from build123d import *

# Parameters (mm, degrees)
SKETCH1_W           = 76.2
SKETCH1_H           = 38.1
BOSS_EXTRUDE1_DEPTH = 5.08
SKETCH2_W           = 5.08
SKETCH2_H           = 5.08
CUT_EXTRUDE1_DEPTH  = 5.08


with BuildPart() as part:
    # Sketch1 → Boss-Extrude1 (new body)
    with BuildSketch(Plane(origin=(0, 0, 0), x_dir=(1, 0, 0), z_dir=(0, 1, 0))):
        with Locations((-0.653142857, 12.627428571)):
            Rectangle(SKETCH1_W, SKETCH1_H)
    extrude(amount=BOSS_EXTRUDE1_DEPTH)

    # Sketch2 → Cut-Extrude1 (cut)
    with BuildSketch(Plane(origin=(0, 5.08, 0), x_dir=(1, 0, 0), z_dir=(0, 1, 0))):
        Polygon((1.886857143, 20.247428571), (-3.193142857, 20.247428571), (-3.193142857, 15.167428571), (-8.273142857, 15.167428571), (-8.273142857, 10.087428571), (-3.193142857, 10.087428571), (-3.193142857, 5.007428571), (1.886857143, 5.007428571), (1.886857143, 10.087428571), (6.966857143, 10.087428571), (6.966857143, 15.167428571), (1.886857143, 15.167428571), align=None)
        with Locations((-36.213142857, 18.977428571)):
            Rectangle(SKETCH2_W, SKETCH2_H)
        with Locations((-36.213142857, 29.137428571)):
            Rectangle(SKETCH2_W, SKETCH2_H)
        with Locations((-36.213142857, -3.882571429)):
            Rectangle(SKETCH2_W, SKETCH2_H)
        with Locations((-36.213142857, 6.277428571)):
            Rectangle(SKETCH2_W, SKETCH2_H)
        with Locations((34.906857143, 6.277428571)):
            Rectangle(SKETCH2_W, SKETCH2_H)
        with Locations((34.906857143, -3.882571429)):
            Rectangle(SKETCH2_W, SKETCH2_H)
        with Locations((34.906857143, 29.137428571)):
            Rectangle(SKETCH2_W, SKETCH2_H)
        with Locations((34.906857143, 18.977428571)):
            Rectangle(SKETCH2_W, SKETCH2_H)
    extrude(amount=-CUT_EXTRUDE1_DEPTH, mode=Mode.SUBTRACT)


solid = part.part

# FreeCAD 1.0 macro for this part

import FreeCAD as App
import Part
import Sketcher
Q = App.Units.Quantity


def add_polygon(sketch, points):
    """Adds a closed chain of lines whose ends are joined by coincident constraints."""
    first, n = sketch.GeometryCount, len(points)
    for a, b in zip(points, points[1:] + points[:1]):
        sketch.addGeometry(Part.LineSegment(App.Vector(*a, 0), App.Vector(*b, 0)), False)
    for i in range(n):
        sketch.addConstraint(Sketcher.Constraint("Coincident", first + i, 2, first + (i + 1) % n, 1))

doc = App.newDocument("Part")
body = doc.addObject("PartDesign::Body", "Body")

# Sketch on XZ plane
sketch1 = doc.addObject("Sketcher::SketchObject", "Sketch")
body.addObject(sketch1)
sketch1.AttachmentSupport = (doc.XZ_Plane, [""])
sketch1.MapMode = "FlatFace"
add_polygon(sketch1, [(-39, -32), (-39, 6), (37, 6), (37, -32)])  # lines 0-3
sketch1.addConstraint([
    Sketcher.Constraint("Vertical", 0),
    Sketcher.Constraint("Horizontal", 1),
    Sketcher.Constraint("Vertical", 2),
    Sketcher.Constraint("Horizontal", 3),
    Sketcher.Constraint("DistanceX", 1, 1, 1, 2, Q("3 in")),
    Sketcher.Constraint("DistanceY", 0, 1, 0, 2, Q("1.5 in")),
    Sketcher.Constraint("DistanceY", -1, 1, 0, 2, 6.422571),
    Sketcher.Constraint("DistanceX", 0, 2, -1, 1, 38.753143),
])
pad1 = doc.addObject("PartDesign::Pad", "Pad")
body.addObject(pad1)
pad1.Profile = sketch1
pad1.Length = Q("0.2 in")
pad1.Reversed = True

# Sketch on XZ plane
sketch2 = doc.addObject("Sketcher::SketchObject", "Sketch001")
body.addObject(sketch2)
sketch2.AttachmentSupport = (doc.XZ_Plane, [""])
sketch2.MapMode = "FlatFace"
sketch2.AttachmentOffset = App.Placement(App.Vector(0, 0, -0.2 * 25.4), App.Rotation())
add_polygon(sketch2, [(2, -20), (-3, -20), (-3, -15), (-8, -15), (-8, -10), (-3, -10), (-3, -5), (2, -5), (2, -10), (7, -10), (7, -15), (2, -15)])  # lines 0-11
add_polygon(sketch2, [(-39, -22), (-39, -16), (-34, -16), (-34, -22)])  # lines 12-15
add_polygon(sketch2, [(-39, -32), (-39, -27), (-34, -27), (-34, -32)])  # lines 16-19
add_polygon(sketch2, [(-39, 1), (-39, 6), (-34, 6), (-34, 1)])  # lines 20-23
add_polygon(sketch2, [(-39, -9), (-39, -4), (-34, -4), (-34, -9)])  # lines 24-27
add_polygon(sketch2, [(32, -9), (32, -4), (37, -4), (37, -9)])  # lines 28-31
add_polygon(sketch2, [(32, 1), (32, 6), (37, 6), (37, 1)])  # lines 32-35
add_polygon(sketch2, [(32, -32), (32, -27), (37, -27), (37, -32)])  # lines 36-39
add_polygon(sketch2, [(32, -22), (32, -16), (37, -16), (37, -22)])  # lines 40-43
sketch2.addConstraint([
    Sketcher.Constraint("Horizontal", 0),
    Sketcher.Constraint("Vertical", 1),
    Sketcher.Constraint("Horizontal", 2),
    Sketcher.Constraint("Vertical", 3),
    Sketcher.Constraint("Horizontal", 4),
    Sketcher.Constraint("Vertical", 5),
    Sketcher.Constraint("Horizontal", 6),
    Sketcher.Constraint("Vertical", 7),
    Sketcher.Constraint("Horizontal", 8),
    Sketcher.Constraint("Vertical", 9),
    Sketcher.Constraint("Horizontal", 10),
    Sketcher.Constraint("Vertical", 11),
    Sketcher.Constraint("Vertical", 12),
    Sketcher.Constraint("Horizontal", 13),
    Sketcher.Constraint("Vertical", 14),
    Sketcher.Constraint("Horizontal", 15),
    Sketcher.Constraint("Vertical", 16),
    Sketcher.Constraint("Horizontal", 17),
    Sketcher.Constraint("Vertical", 18),
    Sketcher.Constraint("Horizontal", 19),
    Sketcher.Constraint("Vertical", 20),
    Sketcher.Constraint("Horizontal", 21),
    Sketcher.Constraint("Vertical", 22),
    Sketcher.Constraint("Horizontal", 23),
    Sketcher.Constraint("Vertical", 24),
    Sketcher.Constraint("Horizontal", 25),
    Sketcher.Constraint("Vertical", 26),
    Sketcher.Constraint("Horizontal", 27),
    Sketcher.Constraint("Vertical", 28),
    Sketcher.Constraint("Horizontal", 29),
    Sketcher.Constraint("Vertical", 30),
    Sketcher.Constraint("Horizontal", 31),
    Sketcher.Constraint("Vertical", 32),
    Sketcher.Constraint("Horizontal", 33),
    Sketcher.Constraint("Vertical", 34),
    Sketcher.Constraint("Horizontal", 35),
    Sketcher.Constraint("Vertical", 36),
    Sketcher.Constraint("Horizontal", 37),
    Sketcher.Constraint("Vertical", 38),
    Sketcher.Constraint("Horizontal", 39),
    Sketcher.Constraint("Vertical", 40),
    Sketcher.Constraint("Horizontal", 41),
    Sketcher.Constraint("Vertical", 42),
    Sketcher.Constraint("Horizontal", 43),
    Sketcher.Constraint("Horizontal", 4, 2, 7, 2),
    Sketcher.Constraint("Horizontal", 2, 2, 9, 2),
    Sketcher.Constraint("Horizontal", 25, 2, 28, 2),
    Sketcher.Constraint("Horizontal", 27, 2, 30, 2),
    Sketcher.Constraint("Horizontal", 21, 2, 32, 2),
    Sketcher.Constraint("Horizontal", 23, 2, 34, 2),
    Sketcher.Constraint("Horizontal", 17, 2, 36, 2),
    Sketcher.Constraint("Horizontal", 19, 2, 38, 2),
    Sketcher.Constraint("Horizontal", 13, 2, 40, 2),
    Sketcher.Constraint("Horizontal", 15, 2, 42, 2),
    Sketcher.Constraint("Vertical", 1, 2, 4, 2),
    Sketcher.Constraint("Vertical", 7, 2, 10, 2),
    Sketcher.Constraint("Vertical", 15, 2, 16, 2),
    Sketcher.Constraint("Vertical", 14, 2, 17, 2),
    Sketcher.Constraint("Vertical", 19, 2, 20, 2),
    Sketcher.Constraint("Vertical", 18, 2, 21, 2),
    Sketcher.Constraint("Vertical", 23, 2, 24, 2),
    Sketcher.Constraint("Vertical", 22, 2, 25, 2),
    Sketcher.Constraint("Vertical", 31, 2, 32, 2),
    Sketcher.Constraint("Vertical", 30, 2, 33, 2),
    Sketcher.Constraint("Vertical", 35, 2, 36, 2),
    Sketcher.Constraint("Vertical", 34, 2, 37, 2),
    Sketcher.Constraint("Vertical", 39, 2, 40, 2),
    Sketcher.Constraint("Vertical", 38, 2, 41, 2),
    Sketcher.Constraint("Equal", 0, 2),
    Sketcher.Constraint("Equal", 6, 8),
    Sketcher.Constraint("Equal", 10, 13),
    Sketcher.Constraint("Equal", 27, 29),
    Sketcher.Constraint("Equal", 43, 1),
    Sketcher.Constraint("Equal", 1, 3),
    Sketcher.Constraint("Equal", 3, 5),
    Sketcher.Constraint("Equal", 11, 12),
    Sketcher.Constraint("Equal", 14, 16),
    Sketcher.Constraint("Equal", 18, 20),
    Sketcher.Constraint("Equal", 22, 24),
    Sketcher.Constraint("DistanceX", 0, 2, 0, 1, Q("0.2 in")),
    Sketcher.Constraint("DistanceX", 13, 2, 2, 2, Q("1 in")),
    Sketcher.Constraint("DistanceX", 8, 2, 28, 2, Q("1 in")),
    Sketcher.Constraint("DistanceY", 16, 2, 15, 2, Q("0.2 in")),
    Sketcher.Constraint("DistanceY", 12, 2, 20, 2, Q("0.9 in")),
    Sketcher.Constraint("DistanceY", 24, 2, 23, 2, Q("0.2 in")),
    Sketcher.Constraint("DistanceY", 12, 2, 2, 2, Q("0.05 in")),
    Sketcher.Constraint("DistanceY", 0, 2, -1, 1, 20.247429),
    Sketcher.Constraint("DistanceX", 0, 2, -1, 1, 3.193143),
])
pocket1 = doc.addObject("PartDesign::Pocket", "Pocket")
body.addObject(pocket1)
pocket1.Profile = sketch2
pocket1.Length = Q("0.2 in")
pocket1.Reversed = True

doc.recompute()
